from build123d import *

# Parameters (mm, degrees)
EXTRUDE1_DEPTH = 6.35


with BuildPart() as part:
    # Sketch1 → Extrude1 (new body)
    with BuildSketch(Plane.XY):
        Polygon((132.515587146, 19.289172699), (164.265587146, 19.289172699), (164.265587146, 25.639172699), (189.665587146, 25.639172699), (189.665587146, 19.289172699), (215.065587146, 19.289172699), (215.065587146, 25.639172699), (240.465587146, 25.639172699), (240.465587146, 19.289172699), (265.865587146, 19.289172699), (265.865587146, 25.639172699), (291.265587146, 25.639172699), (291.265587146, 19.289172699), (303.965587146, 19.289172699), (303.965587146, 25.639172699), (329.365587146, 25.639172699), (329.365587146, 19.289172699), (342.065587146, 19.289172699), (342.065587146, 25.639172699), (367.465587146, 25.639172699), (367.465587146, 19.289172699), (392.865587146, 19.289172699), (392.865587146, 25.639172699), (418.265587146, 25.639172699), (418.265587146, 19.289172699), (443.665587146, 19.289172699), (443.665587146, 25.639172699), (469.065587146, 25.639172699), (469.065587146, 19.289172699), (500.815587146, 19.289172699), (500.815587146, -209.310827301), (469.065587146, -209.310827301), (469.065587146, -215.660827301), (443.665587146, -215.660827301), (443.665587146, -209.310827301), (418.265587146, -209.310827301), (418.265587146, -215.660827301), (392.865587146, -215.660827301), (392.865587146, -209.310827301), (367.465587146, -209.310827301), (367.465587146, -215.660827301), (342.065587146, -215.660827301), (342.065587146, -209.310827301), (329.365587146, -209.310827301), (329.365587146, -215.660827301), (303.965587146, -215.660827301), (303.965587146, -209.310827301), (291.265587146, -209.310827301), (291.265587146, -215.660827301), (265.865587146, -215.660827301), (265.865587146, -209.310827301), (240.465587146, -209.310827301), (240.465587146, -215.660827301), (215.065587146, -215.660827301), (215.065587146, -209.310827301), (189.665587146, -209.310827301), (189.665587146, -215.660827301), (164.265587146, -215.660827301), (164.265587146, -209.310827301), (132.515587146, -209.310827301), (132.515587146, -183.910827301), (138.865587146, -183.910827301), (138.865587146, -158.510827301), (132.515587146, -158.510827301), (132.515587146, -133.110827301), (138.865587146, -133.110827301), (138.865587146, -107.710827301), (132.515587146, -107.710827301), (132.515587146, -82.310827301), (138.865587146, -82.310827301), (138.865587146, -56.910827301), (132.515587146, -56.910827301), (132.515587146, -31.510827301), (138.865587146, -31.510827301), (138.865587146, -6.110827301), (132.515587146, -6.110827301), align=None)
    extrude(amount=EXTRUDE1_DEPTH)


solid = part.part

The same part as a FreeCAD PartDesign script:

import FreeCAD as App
import Part
import Sketcher
Q = App.Units.Quantity

doc = App.newDocument("Part")
body = doc.addObject("PartDesign::Body", "Body")

# Sketch on XY plane
sketch1 = body.newObject("Sketcher::SketchObject", "Sketch")
sketch1.AttachmentSupport = (doc.getObject("XY_Plane"), [""])
sketch1.MapMode = "FlatFace"
sketch1.addGeometry([
    Part.LineSegment(App.Vector(164.265587, 19.289173, 0), App.Vector(132.515587, 19.289173, 0)),  # 0
    Part.LineSegment(App.Vector(132.515587, 19.289173, 0), App.Vector(132.515587, -6.110827, 0)),  # 1
    Part.LineSegment(App.Vector(132.515587, -6.110827, 0), App.Vector(138.865587, -6.110827, 0)),  # 2
    Part.LineSegment(App.Vector(138.865587, -6.110827, 0), App.Vector(138.865587, -31.510827, 0)),  # 3
    Part.LineSegment(App.Vector(138.865587, -31.510827, 0), App.Vector(132.515587, -31.510827, 0)),  # 4
    Part.LineSegment(App.Vector(132.515587, -31.510827, 0), App.Vector(132.515587, -56.910827, 0)),  # 5
    Part.LineSegment(App.Vector(132.515587, -56.910827, 0), App.Vector(138.865587, -56.910827, 0)),  # 6
    Part.LineSegment(App.Vector(138.865587, -56.910827, 0), App.Vector(138.865587, -82.310827, 0)),  # 7
    Part.LineSegment(App.Vector(138.865587, -82.310827, 0), App.Vector(132.515587, -82.310827, 0)),  # 8
    Part.LineSegment(App.Vector(132.515587, -82.310827, 0), App.Vector(132.515587, -107.710827, 0)),  # 9
    Part.LineSegment(App.Vector(132.515587, -107.710827, 0), App.Vector(138.865587, -107.710827, 0)),  # 10
    Part.LineSegment(App.Vector(138.865587, -107.710827, 0), App.Vector(138.865587, -133.110827, 0)),  # 11
    Part.LineSegment(App.Vector(138.865587, -133.110827, 0), App.Vector(132.515587, -133.110827, 0)),  # 12
    Part.LineSegment(App.Vector(132.515587, -133.110827, 0), App.Vector(132.515587, -158.510827, 0)),  # 13
    Part.LineSegment(App.Vector(132.515587, -158.510827, 0), App.Vector(138.865587, -158.510827, 0)),  # 14
    Part.LineSegment(App.Vector(138.865587, -158.510827, 0), App.Vector(138.865587, -183.910827, 0)),  # 15
    Part.LineSegment(App.Vector(138.865587, -183.910827, 0), App.Vector(132.515587, -183.910827, 0)),  # 16
    Part.LineSegment(App.Vector(132.515587, -183.910827, 0), App.Vector(132.515587, -209.310827, 0)),  # 17
    Part.LineSegment(App.Vector(132.515587, -209.310827, 0), App.Vector(164.265587, -209.310827, 0)),  # 18
    Part.LineSegment(App.Vector(164.265587, -209.310827, 0), App.Vector(164.265587, -215.660827, 0)),  # 19
    Part.LineSegment(App.Vector(164.265587, -215.660827, 0), App.Vector(189.665587, -215.660827, 0)),  # 20
    Part.LineSegment(App.Vector(189.665587, -215.660827, 0), App.Vector(189.665587, -209.310827, 0)),  # 21
    Part.LineSegment(App.Vector(189.665587, -209.310827, 0), App.Vector(215.065587, -209.310827, 0)),  # 22
    Part.LineSegment(App.Vector(215.065587, -209.310827, 0), App.Vector(215.065587, -215.660827, 0)),  # 23
    Part.LineSegment(App.Vector(215.065587, -215.660827, 0), App.Vector(240.465587, -215.660827, 0)),  # 24
    Part.LineSegment(App.Vector(240.465587, -215.660827, 0), App.Vector(240.465587, -209.310827, 0)),  # 25
    Part.LineSegment(App.Vector(240.465587, -209.310827, 0), App.Vector(265.865587, -209.310827, 0)),  # 26
    Part.LineSegment(App.Vector(265.865587, -209.310827, 0), App.Vector(265.865587, -215.660827, 0)),  # 27
    Part.LineSegment(App.Vector(265.865587, -215.660827, 0), App.Vector(291.265587, -215.660827, 0)),  # 28
    Part.LineSegment(App.Vector(291.265587, -215.660827, 0), App.Vector(291.265587, -209.310827, 0)),  # 29
    Part.LineSegment(App.Vector(291.265587, -209.310827, 0), App.Vector(303.965587, -209.310827, 0)),  # 30
    Part.LineSegment(App.Vector(303.965587, -209.310827, 0), App.Vector(303.965587, -215.660827, 0)),  # 31
    Part.LineSegment(App.Vector(303.965587, -215.660827, 0), App.Vector(329.365587, -215.660827, 0)),  # 32
    Part.LineSegment(App.Vector(329.365587, -215.660827, 0), App.Vector(329.365587, -209.310827, 0)),  # 33
    Part.LineSegment(App.Vector(329.365587, -209.310827, 0), App.Vector(342.065587, -209.310827, 0)),  # 34
    Part.LineSegment(App.Vector(342.065587, -209.310827, 0), App.Vector(342.065587, -215.660827, 0)),  # 35
    Part.LineSegment(App.Vector(342.065587, -215.660827, 0), App.Vector(367.465587, -215.660827, 0)),  # 36
    Part.LineSegment(App.Vector(367.465587, -215.660827, 0), App.Vector(367.465587, -209.310827, 0)),  # 37
    Part.LineSegment(App.Vector(367.465587, -209.310827, 0), App.Vector(392.865587, -209.310827, 0)),  # 38
    Part.LineSegment(App.Vector(392.865587, -209.310827, 0), App.Vector(392.865587, -215.660827, 0)),  # 39
    Part.LineSegment(App.Vector(392.865587, -215.660827, 0), App.Vector(418.265587, -215.660827, 0)),  # 40
    Part.LineSegment(App.Vector(418.265587, -215.660827, 0), App.Vector(418.265587, -209.310827, 0)),  # 41
    Part.LineSegment(App.Vector(418.265587, -209.310827, 0), App.Vector(443.665587, -209.310827, 0)),  # 42
    Part.LineSegment(App.Vector(443.665587, -209.310827, 0), App.Vector(443.665587, -215.660827, 0)),  # 43
    Part.LineSegment(App.Vector(443.665587, -215.660827, 0), App.Vector(469.065587, -215.660827, 0)),  # 44
    Part.LineSegment(App.Vector(469.065587, -215.660827, 0), App.Vector(469.065587, -209.310827, 0)),  # 45
    Part.LineSegment(App.Vector(469.065587, -209.310827, 0), App.Vector(500.815587, -209.310827, 0)),  # 46
    Part.LineSegment(App.Vector(500.815587, -209.310827, 0), App.Vector(500.815587, 19.289173, 0)),  # 47
    Part.LineSegment(App.Vector(500.815587, 19.289173, 0), App.Vector(469.065587, 19.289173, 0)),  # 48
    Part.LineSegment(App.Vector(469.065587, 19.289173, 0), App.Vector(469.065587, 25.639173, 0)),  # 49
    Part.LineSegment(App.Vector(469.065587, 25.639173, 0), App.Vector(443.665587, 25.639173, 0)),  # 50
    Part.LineSegment(App.Vector(443.665587, 25.639173, 0), App.Vector(443.665587, 19.289173, 0)),  # 51
    Part.LineSegment(App.Vector(443.665587, 19.289173, 0), App.Vector(418.265587, 19.289173, 0)),  # 52
    Part.LineSegment(App.Vector(418.265587, 19.289173, 0), App.Vector(418.265587, 25.639173, 0)),  # 53
    Part.LineSegment(App.Vector(418.265587, 25.639173, 0), App.Vector(392.865587, 25.639173, 0)),  # 54
    Part.LineSegment(App.Vector(392.865587, 25.639173, 0), App.Vector(392.865587, 19.289173, 0)),  # 55
    Part.LineSegment(App.Vector(392.865587, 19.289173, 0), App.Vector(367.465587, 19.289173, 0)),  # 56
    Part.LineSegment(App.Vector(367.465587, 19.289173, 0), App.Vector(367.465587, 25.639173, 0)),  # 57
    Part.LineSegment(App.Vector(367.465587, 25.639173, 0), App.Vector(342.065587, 25.639173, 0)),  # 58
    Part.LineSegment(App.Vector(342.065587, 25.639173, 0), App.Vector(342.065587, 19.289173, 0)),  # 59
    Part.LineSegment(App.Vector(342.065587, 19.289173, 0), App.Vector(329.365587, 19.289173, 0)),  # 60
    Part.LineSegment(App.Vector(329.365587, 19.289173, 0), App.Vector(329.365587, 25.639173, 0)),  # 61
    Part.LineSegment(App.Vector(329.365587, 25.639173, 0), App.Vector(303.965587, 25.639173, 0)),  # 62
    Part.LineSegment(App.Vector(303.965587, 25.639173, 0), App.Vector(303.965587, 19.289173, 0)),  # 63
    Part.LineSegment(App.Vector(303.965587, 19.289173, 0), App.Vector(291.265587, 19.289173, 0)),  # 64
    Part.LineSegment(App.Vector(291.265587, 19.289173, 0), App.Vector(291.265587, 25.639173, 0)),  # 65
    Part.LineSegment(App.Vector(291.265587, 25.639173, 0), App.Vector(265.865587, 25.639173, 0)),  # 66
    Part.LineSegment(App.Vector(265.865587, 25.639173, 0), App.Vector(265.865587, 19.289173, 0)),  # 67
    Part.LineSegment(App.Vector(265.865587, 19.289173, 0), App.Vector(240.465587, 19.289173, 0)),  # 68
    Part.LineSegment(App.Vector(240.465587, 19.289173, 0), App.Vector(240.465587, 25.639173, 0)),  # 69
    Part.LineSegment(App.Vector(240.465587, 25.639173, 0), App.Vector(215.065587, 25.639173, 0)),  # 70
    Part.LineSegment(App.Vector(215.065587, 25.639173, 0), App.Vector(215.065587, 19.289173, 0)),  # 71
    Part.LineSegment(App.Vector(215.065587, 19.289173, 0), App.Vector(189.665587, 19.289173, 0)),  # 72
    Part.LineSegment(App.Vector(189.665587, 19.289173, 0), App.Vector(189.665587, 25.639173, 0)),  # 73
    Part.LineSegment(App.Vector(189.665587, 25.639173, 0), App.Vector(164.265587, 25.639173, 0)),  # 74
    Part.LineSegment(App.Vector(164.265587, 25.639173, 0), App.Vector(164.265587, 19.289173, 0)),  # 75
], False)
sketch1.addConstraint([
    Sketcher.Constraint("Coincident", 0, 2, 1, 1),
    Sketcher.Constraint("Coincident", 1, 2, 2, 1),
    Sketcher.Constraint("Coincident", 2, 2, 3, 1),
    Sketcher.Constraint("Coincident", 3, 2, 4, 1),
    Sketcher.Constraint("Coincident", 4, 2, 5, 1),
    Sketcher.Constraint("Coincident", 5, 2, 6, 1),
    Sketcher.Constraint("Coincident", 6, 2, 7, 1),
    Sketcher.Constraint("Coincident", 7, 2, 8, 1),
    Sketcher.Constraint("Coincident", 8, 2, 9, 1),
    Sketcher.Constraint("Coincident", 9, 2, 10, 1),
    Sketcher.Constraint("Coincident", 10, 2, 11, 1),
    Sketcher.Constraint("Coincident", 11, 2, 12, 1),
    Sketcher.Constraint("Coincident", 12, 2, 13, 1),
    Sketcher.Constraint("Coincident", 13, 2, 14, 1),
    Sketcher.Constraint("Coincident", 14, 2, 15, 1),
    Sketcher.Constraint("Coincident", 15, 2, 16, 1),
    Sketcher.Constraint("Coincident", 16, 2, 17, 1),
    Sketcher.Constraint("Coincident", 17, 2, 18, 1),
    Sketcher.Constraint("Coincident", 18, 2, 19, 1),
    Sketcher.Constraint("Coincident", 19, 2, 20, 1),
    Sketcher.Constraint("Coincident", 20, 2, 21, 1),
    Sketcher.Constraint("Coincident", 21, 2, 22, 1),
    Sketcher.Constraint("Coincident", 22, 2, 23, 1),
    Sketcher.Constraint("Coincident", 23, 2, 24, 1),
    Sketcher.Constraint("Coincident", 24, 2, 25, 1),
    Sketcher.Constraint("Coincident", 25, 2, 26, 1),
    Sketcher.Constraint("Coincident", 26, 2, 27, 1),
    Sketcher.Constraint("Coincident", 27, 2, 28, 1),
    Sketcher.Constraint("Coincident", 28, 2, 29, 1),
    Sketcher.Constraint("Coincident", 29, 2, 30, 1),
    Sketcher.Constraint("Coincident", 30, 2, 31, 1),
    Sketcher.Constraint("Coincident", 31, 2, 32, 1),
    Sketcher.Constraint("Coincident", 32, 2, 33, 1),
    Sketcher.Constraint("Coincident", 33, 2, 34, 1),
    Sketcher.Constraint("Coincident", 34, 2, 35, 1),
    Sketcher.Constraint("Coincident", 35, 2, 36, 1),
    Sketcher.Constraint("Coincident", 36, 2, 37, 1),
    Sketcher.Constraint("Coincident", 37, 2, 38, 1),
    Sketcher.Constraint("Coincident", 38, 2, 39, 1),
    Sketcher.Constraint("Coincident", 39, 2, 40, 1),
    Sketcher.Constraint("Coincident", 40, 2, 41, 1),
    Sketcher.Constraint("Coincident", 41, 2, 42, 1),
    Sketcher.Constraint("Coincident", 42, 2, 43, 1),
    Sketcher.Constraint("Coincident", 43, 2, 44, 1),
    Sketcher.Constraint("Coincident", 44, 2, 45, 1),
    Sketcher.Constraint("Coincident", 45, 2, 46, 1),
    Sketcher.Constraint("Coincident", 46, 2, 47, 1),
    Sketcher.Constraint("Coincident", 47, 2, 48, 1),
    Sketcher.Constraint("Coincident", 48, 2, 49, 1),
    Sketcher.Constraint("Coincident", 49, 2, 50, 1),
    Sketcher.Constraint("Coincident", 50, 2, 51, 1),
    Sketcher.Constraint("Coincident", 51, 2, 52, 1),
    Sketcher.Constraint("Coincident", 52, 2, 53, 1),
    Sketcher.Constraint("Coincident", 53, 2, 54, 1),
    Sketcher.Constraint("Coincident", 54, 2, 55, 1),
    Sketcher.Constraint("Coincident", 55, 2, 56, 1),
    Sketcher.Constraint("Coincident", 56, 2, 57, 1),
    Sketcher.Constraint("Coincident", 57, 2, 58, 1),
    Sketcher.Constraint("Coincident", 58, 2, 59, 1),
    Sketcher.Constraint("Coincident", 59, 2, 60, 1),
    Sketcher.Constraint("Coincident", 60, 2, 61, 1),
    Sketcher.Constraint("Coincident", 61, 2, 62, 1),
    Sketcher.Constraint("Coincident", 62, 2, 63, 1),
    Sketcher.Constraint("Coincident", 63, 2, 64, 1),
    Sketcher.Constraint("Coincident", 64, 2, 65, 1),
    Sketcher.Constraint("Coincident", 65, 2, 66, 1),
    Sketcher.Constraint("Coincident", 66, 2, 67, 1),
    Sketcher.Constraint("Coincident", 67, 2, 68, 1),
    Sketcher.Constraint("Coincident", 68, 2, 69, 1),
    Sketcher.Constraint("Coincident", 69, 2, 70, 1),
    Sketcher.Constraint("Coincident", 70, 2, 71, 1),
    Sketcher.Constraint("Coincident", 71, 2, 72, 1),
    Sketcher.Constraint("Coincident", 72, 2, 73, 1),
    Sketcher.Constraint("Coincident", 73, 2, 74, 1),
    Sketcher.Constraint("Coincident", 74, 2, 75, 1),
    Sketcher.Constraint("Coincident", 75, 2, 0, 1),
    Sketcher.Constraint("Horizontal", 0),
    Sketcher.Constraint("Vertical", 1),
    Sketcher.Constraint("Horizontal", 2),
    Sketcher.Constraint("Vertical", 3),
    Sketcher.Constraint("Horizontal", 4),
    Sketcher.Constraint("Vertical", 5),
    Sketcher.Constraint("Horizontal", 6),
    Sketcher.Constraint("Vertical", 7),
    Sketcher.Constraint("Horizontal", 8),
    Sketcher.Constraint("Vertical", 9),
    Sketcher.Constraint("Horizontal", 10),
    Sketcher.Constraint("Vertical", 11),
    Sketcher.Constraint("Horizontal", 12),
    Sketcher.Constraint("Vertical", 13),
    Sketcher.Constraint("Horizontal", 14),
    Sketcher.Constraint("Vertical", 15),
    Sketcher.Constraint("Horizontal", 16),
    Sketcher.Constraint("Vertical", 17),
    Sketcher.Constraint("Horizontal", 18),
    Sketcher.Constraint("Vertical", 19),
    Sketcher.Constraint("Horizontal", 20),
    Sketcher.Constraint("Vertical", 21),
    Sketcher.Constraint("Horizontal", 22),
    Sketcher.Constraint("Vertical", 23),
    Sketcher.Constraint("Horizontal", 24),
    Sketcher.Constraint("Vertical", 25),
    Sketcher.Constraint("Horizontal", 26),
    Sketcher.Constraint("Vertical", 27),
    Sketcher.Constraint("Horizontal", 28),
    Sketcher.Constraint("Vertical", 29),
    Sketcher.Constraint("Horizontal", 30),
    Sketcher.Constraint("Vertical", 31),
    Sketcher.Constraint("Horizontal", 32),
    Sketcher.Constraint("Vertical", 33),
    Sketcher.Constraint("Horizontal", 34),
    Sketcher.Constraint("Vertical", 35),
    Sketcher.Constraint("Horizontal", 36),
    Sketcher.Constraint("Vertical", 37),
    Sketcher.Constraint("Horizontal", 38),
    Sketcher.Constraint("Vertical", 39),
    Sketcher.Constraint("Horizontal", 40),
    Sketcher.Constraint("Vertical", 41),
    Sketcher.Constraint("Horizontal", 42),
    Sketcher.Constraint("Vertical", 43),
    Sketcher.Constraint("Horizontal", 44),
    Sketcher.Constraint("Vertical", 45),
    Sketcher.Constraint("Horizontal", 46),
    Sketcher.Constraint("Vertical", 47),
    Sketcher.Constraint("Horizontal", 48),
    Sketcher.Constraint("Vertical", 49),
    Sketcher.Constraint("Horizontal", 50),
    Sketcher.Constraint("Vertical", 51),
    Sketcher.Constraint("Horizontal", 52),
    Sketcher.Constraint("Vertical", 53),
    Sketcher.Constraint("Horizontal", 54),
    Sketcher.Constraint("Vertical", 55),
    Sketcher.Constraint("Horizontal", 56),
    Sketcher.Constraint("Vertical", 57),
    Sketcher.Constraint("Horizontal", 58),
    Sketcher.Constraint("Vertical", 59),
    Sketcher.Constraint("Horizontal", 60),
    Sketcher.Constraint("Vertical", 61),
    Sketcher.Constraint("Horizontal", 62),
    Sketcher.Constraint("Vertical", 63),
    Sketcher.Constraint("Horizontal", 64),
    Sketcher.Constraint("Vertical", 65),
    Sketcher.Constraint("Horizontal", 66),
    Sketcher.Constraint("Vertical", 67),
    Sketcher.Constraint("Horizontal", 68),
    Sketcher.Constraint("Vertical", 69),
    Sketcher.Constraint("Horizontal", 70),
    Sketcher.Constraint("Vertical", 71),
    Sketcher.Constraint("Horizontal", 72),
    Sketcher.Constraint("Vertical", 73),
    Sketcher.Constraint("Horizontal", 74),
    Sketcher.Constraint("Vertical", 75),
    Sketcher.Constraint("Horizontal", 18, 2, 21, 2),
    Sketcher.Constraint("Horizontal", 20, 2, 23, 2),
    Sketcher.Constraint("Horizontal", 22, 2, 25, 2),
    Sketcher.Constraint("Horizontal", 24, 2, 27, 2),
    Sketcher.Constraint("Horizontal", 26, 2, 29, 2),
    Sketcher.Constraint("Horizontal", 28, 2, 31, 2),
    Sketcher.Constraint("Horizontal", 30, 2, 33, 2),
    Sketcher.Constraint("Horizontal", 32, 2, 35, 2),
    Sketcher.Constraint("Horizontal", 34, 2, 37, 2),
    Sketcher.Constraint("Horizontal", 36, 2, 39, 2),
    Sketcher.Constraint("Horizontal", 38, 2, 41, 2),
    Sketcher.Constraint("Horizontal", 40, 2, 43, 2),
    Sketcher.Constraint("Horizontal", 42, 2, 45, 2),
    Sketcher.Constraint("Horizontal", 0, 2, 47, 2),
    Sketcher.Constraint("Horizontal", 48, 2, 51, 2),
    Sketcher.Constraint("Horizontal", 50, 2, 53, 2),
    Sketcher.Constraint("Horizontal", 52, 2, 55, 2),
    Sketcher.Constraint("Horizontal", 54, 2, 57, 2),
    Sketcher.Constraint("Horizontal", 56, 2, 59, 2),
    Sketcher.Constraint("Horizontal", 58, 2, 61, 2),
    Sketcher.Constraint("Horizontal", 60, 2, 63, 2),
    Sketcher.Constraint("Horizontal", 62, 2, 65, 2),
    Sketcher.Constraint("Horizontal", 64, 2, 67, 2),
    Sketcher.Constraint("Horizontal", 66, 2, 69, 2),
    Sketcher.Constraint("Horizontal", 68, 2, 71, 2),
    Sketcher.Constraint("Horizontal", 70, 2, 73, 2),
    Sketcher.Constraint("Vertical", 1, 2, 4, 2),
    Sketcher.Constraint("Vertical", 3, 2, 6, 2),
    Sketcher.Constraint("Vertical", 5, 2, 8, 2),
    Sketcher.Constraint("Vertical", 7, 2, 10, 2),
    Sketcher.Constraint("Vertical", 9, 2, 12, 2),
    Sketcher.Constraint("Vertical", 11, 2, 14, 2),
    Sketcher.Constraint("Vertical", 13, 2, 16, 2),
    Sketcher.Constraint("Vertical", 45, 2, 48, 2),
    Sketcher.Constraint("Vertical", 43, 2, 50, 2),
    Sketcher.Constraint("Vertical", 41, 2, 52, 2),
    Sketcher.Constraint("Vertical", 39, 2, 54, 2),
    Sketcher.Constraint("Vertical", 37, 2, 56, 2),
    Sketcher.Constraint("Vertical", 35, 2, 58, 2),
    Sketcher.Constraint("Vertical", 33, 2, 60, 2),
    Sketcher.Constraint("Vertical", 31, 2, 62, 2),
    Sketcher.Constraint("Vertical", 29, 2, 64, 2),
    Sketcher.Constraint("Vertical", 27, 2, 66, 2),
    Sketcher.Constraint("Vertical", 25, 2, 68, 2),
    Sketcher.Constraint("Vertical", 23, 2, 70, 2),
    Sketcher.Constraint("Vertical", 21, 2, 72, 2),
    Sketcher.Constraint("Vertical", 19, 2, 74, 2),
    Sketcher.Constraint("Equal", 20, 22),
    Sketcher.Constraint("Equal", 22, 24),
    Sketcher.Constraint("Equal", 24, 26),
    Sketcher.Constraint("Equal", 26, 28),
    Sketcher.Constraint("Equal", 28, 32),
    Sketcher.Constraint("Equal", 30, 34),
    Sketcher.Constraint("Equal", 32, 36),
    Sketcher.Constraint("Equal", 36, 38),
    Sketcher.Constraint("Equal", 38, 40),
    Sketcher.Constraint("Equal", 40, 42),
    Sketcher.Constraint("Equal", 42, 44),
    Sketcher.Constraint("Equal", 18, 46),
    Sketcher.Constraint("Equal", 74, 1),
    Sketcher.Constraint("Equal", 1, 3),
    Sketcher.Constraint("Equal", 3, 5),
    Sketcher.Constraint("Equal", 5, 7),
    Sketcher.Constraint("Equal", 7, 9),
    Sketcher.Constraint("Equal", 9, 11),
    Sketcher.Constraint("Equal", 11, 13),
    Sketcher.Constraint("Equal", 13, 15),
    Sketcher.Constraint("Equal", 15, 17),
    Sketcher.Constraint("Equal", 16, 19),
    Sketcher.Constraint("Equal", 45, 49),
    Sketcher.Constraint("DistanceX", 20, 1, 20, 2, Q("1 in")),
    Sketcher.Constraint("DistanceX", 30, 1, 30, 2, Q("0.5 in")),
    Sketcher.Constraint("DistanceX", 0, 2, 0, 1, Q("1.25 in")),
    Sketcher.Constraint("DistanceX", 2, 1, 2, 2, Q("0.25 in")),
    Sketcher.Constraint("DistanceX", -1, 1, 0, 2, Q("132.515587 mm")),
    Sketcher.Constraint("DistanceY", -1, 1, 0, 2, Q("19.289173 mm")),
])
pad1 = body.newObject("PartDesign::Pad", "Pad")
pad1.Profile = sketch1
pad1.Length = Q("0.25 in")

doc.recompute()
